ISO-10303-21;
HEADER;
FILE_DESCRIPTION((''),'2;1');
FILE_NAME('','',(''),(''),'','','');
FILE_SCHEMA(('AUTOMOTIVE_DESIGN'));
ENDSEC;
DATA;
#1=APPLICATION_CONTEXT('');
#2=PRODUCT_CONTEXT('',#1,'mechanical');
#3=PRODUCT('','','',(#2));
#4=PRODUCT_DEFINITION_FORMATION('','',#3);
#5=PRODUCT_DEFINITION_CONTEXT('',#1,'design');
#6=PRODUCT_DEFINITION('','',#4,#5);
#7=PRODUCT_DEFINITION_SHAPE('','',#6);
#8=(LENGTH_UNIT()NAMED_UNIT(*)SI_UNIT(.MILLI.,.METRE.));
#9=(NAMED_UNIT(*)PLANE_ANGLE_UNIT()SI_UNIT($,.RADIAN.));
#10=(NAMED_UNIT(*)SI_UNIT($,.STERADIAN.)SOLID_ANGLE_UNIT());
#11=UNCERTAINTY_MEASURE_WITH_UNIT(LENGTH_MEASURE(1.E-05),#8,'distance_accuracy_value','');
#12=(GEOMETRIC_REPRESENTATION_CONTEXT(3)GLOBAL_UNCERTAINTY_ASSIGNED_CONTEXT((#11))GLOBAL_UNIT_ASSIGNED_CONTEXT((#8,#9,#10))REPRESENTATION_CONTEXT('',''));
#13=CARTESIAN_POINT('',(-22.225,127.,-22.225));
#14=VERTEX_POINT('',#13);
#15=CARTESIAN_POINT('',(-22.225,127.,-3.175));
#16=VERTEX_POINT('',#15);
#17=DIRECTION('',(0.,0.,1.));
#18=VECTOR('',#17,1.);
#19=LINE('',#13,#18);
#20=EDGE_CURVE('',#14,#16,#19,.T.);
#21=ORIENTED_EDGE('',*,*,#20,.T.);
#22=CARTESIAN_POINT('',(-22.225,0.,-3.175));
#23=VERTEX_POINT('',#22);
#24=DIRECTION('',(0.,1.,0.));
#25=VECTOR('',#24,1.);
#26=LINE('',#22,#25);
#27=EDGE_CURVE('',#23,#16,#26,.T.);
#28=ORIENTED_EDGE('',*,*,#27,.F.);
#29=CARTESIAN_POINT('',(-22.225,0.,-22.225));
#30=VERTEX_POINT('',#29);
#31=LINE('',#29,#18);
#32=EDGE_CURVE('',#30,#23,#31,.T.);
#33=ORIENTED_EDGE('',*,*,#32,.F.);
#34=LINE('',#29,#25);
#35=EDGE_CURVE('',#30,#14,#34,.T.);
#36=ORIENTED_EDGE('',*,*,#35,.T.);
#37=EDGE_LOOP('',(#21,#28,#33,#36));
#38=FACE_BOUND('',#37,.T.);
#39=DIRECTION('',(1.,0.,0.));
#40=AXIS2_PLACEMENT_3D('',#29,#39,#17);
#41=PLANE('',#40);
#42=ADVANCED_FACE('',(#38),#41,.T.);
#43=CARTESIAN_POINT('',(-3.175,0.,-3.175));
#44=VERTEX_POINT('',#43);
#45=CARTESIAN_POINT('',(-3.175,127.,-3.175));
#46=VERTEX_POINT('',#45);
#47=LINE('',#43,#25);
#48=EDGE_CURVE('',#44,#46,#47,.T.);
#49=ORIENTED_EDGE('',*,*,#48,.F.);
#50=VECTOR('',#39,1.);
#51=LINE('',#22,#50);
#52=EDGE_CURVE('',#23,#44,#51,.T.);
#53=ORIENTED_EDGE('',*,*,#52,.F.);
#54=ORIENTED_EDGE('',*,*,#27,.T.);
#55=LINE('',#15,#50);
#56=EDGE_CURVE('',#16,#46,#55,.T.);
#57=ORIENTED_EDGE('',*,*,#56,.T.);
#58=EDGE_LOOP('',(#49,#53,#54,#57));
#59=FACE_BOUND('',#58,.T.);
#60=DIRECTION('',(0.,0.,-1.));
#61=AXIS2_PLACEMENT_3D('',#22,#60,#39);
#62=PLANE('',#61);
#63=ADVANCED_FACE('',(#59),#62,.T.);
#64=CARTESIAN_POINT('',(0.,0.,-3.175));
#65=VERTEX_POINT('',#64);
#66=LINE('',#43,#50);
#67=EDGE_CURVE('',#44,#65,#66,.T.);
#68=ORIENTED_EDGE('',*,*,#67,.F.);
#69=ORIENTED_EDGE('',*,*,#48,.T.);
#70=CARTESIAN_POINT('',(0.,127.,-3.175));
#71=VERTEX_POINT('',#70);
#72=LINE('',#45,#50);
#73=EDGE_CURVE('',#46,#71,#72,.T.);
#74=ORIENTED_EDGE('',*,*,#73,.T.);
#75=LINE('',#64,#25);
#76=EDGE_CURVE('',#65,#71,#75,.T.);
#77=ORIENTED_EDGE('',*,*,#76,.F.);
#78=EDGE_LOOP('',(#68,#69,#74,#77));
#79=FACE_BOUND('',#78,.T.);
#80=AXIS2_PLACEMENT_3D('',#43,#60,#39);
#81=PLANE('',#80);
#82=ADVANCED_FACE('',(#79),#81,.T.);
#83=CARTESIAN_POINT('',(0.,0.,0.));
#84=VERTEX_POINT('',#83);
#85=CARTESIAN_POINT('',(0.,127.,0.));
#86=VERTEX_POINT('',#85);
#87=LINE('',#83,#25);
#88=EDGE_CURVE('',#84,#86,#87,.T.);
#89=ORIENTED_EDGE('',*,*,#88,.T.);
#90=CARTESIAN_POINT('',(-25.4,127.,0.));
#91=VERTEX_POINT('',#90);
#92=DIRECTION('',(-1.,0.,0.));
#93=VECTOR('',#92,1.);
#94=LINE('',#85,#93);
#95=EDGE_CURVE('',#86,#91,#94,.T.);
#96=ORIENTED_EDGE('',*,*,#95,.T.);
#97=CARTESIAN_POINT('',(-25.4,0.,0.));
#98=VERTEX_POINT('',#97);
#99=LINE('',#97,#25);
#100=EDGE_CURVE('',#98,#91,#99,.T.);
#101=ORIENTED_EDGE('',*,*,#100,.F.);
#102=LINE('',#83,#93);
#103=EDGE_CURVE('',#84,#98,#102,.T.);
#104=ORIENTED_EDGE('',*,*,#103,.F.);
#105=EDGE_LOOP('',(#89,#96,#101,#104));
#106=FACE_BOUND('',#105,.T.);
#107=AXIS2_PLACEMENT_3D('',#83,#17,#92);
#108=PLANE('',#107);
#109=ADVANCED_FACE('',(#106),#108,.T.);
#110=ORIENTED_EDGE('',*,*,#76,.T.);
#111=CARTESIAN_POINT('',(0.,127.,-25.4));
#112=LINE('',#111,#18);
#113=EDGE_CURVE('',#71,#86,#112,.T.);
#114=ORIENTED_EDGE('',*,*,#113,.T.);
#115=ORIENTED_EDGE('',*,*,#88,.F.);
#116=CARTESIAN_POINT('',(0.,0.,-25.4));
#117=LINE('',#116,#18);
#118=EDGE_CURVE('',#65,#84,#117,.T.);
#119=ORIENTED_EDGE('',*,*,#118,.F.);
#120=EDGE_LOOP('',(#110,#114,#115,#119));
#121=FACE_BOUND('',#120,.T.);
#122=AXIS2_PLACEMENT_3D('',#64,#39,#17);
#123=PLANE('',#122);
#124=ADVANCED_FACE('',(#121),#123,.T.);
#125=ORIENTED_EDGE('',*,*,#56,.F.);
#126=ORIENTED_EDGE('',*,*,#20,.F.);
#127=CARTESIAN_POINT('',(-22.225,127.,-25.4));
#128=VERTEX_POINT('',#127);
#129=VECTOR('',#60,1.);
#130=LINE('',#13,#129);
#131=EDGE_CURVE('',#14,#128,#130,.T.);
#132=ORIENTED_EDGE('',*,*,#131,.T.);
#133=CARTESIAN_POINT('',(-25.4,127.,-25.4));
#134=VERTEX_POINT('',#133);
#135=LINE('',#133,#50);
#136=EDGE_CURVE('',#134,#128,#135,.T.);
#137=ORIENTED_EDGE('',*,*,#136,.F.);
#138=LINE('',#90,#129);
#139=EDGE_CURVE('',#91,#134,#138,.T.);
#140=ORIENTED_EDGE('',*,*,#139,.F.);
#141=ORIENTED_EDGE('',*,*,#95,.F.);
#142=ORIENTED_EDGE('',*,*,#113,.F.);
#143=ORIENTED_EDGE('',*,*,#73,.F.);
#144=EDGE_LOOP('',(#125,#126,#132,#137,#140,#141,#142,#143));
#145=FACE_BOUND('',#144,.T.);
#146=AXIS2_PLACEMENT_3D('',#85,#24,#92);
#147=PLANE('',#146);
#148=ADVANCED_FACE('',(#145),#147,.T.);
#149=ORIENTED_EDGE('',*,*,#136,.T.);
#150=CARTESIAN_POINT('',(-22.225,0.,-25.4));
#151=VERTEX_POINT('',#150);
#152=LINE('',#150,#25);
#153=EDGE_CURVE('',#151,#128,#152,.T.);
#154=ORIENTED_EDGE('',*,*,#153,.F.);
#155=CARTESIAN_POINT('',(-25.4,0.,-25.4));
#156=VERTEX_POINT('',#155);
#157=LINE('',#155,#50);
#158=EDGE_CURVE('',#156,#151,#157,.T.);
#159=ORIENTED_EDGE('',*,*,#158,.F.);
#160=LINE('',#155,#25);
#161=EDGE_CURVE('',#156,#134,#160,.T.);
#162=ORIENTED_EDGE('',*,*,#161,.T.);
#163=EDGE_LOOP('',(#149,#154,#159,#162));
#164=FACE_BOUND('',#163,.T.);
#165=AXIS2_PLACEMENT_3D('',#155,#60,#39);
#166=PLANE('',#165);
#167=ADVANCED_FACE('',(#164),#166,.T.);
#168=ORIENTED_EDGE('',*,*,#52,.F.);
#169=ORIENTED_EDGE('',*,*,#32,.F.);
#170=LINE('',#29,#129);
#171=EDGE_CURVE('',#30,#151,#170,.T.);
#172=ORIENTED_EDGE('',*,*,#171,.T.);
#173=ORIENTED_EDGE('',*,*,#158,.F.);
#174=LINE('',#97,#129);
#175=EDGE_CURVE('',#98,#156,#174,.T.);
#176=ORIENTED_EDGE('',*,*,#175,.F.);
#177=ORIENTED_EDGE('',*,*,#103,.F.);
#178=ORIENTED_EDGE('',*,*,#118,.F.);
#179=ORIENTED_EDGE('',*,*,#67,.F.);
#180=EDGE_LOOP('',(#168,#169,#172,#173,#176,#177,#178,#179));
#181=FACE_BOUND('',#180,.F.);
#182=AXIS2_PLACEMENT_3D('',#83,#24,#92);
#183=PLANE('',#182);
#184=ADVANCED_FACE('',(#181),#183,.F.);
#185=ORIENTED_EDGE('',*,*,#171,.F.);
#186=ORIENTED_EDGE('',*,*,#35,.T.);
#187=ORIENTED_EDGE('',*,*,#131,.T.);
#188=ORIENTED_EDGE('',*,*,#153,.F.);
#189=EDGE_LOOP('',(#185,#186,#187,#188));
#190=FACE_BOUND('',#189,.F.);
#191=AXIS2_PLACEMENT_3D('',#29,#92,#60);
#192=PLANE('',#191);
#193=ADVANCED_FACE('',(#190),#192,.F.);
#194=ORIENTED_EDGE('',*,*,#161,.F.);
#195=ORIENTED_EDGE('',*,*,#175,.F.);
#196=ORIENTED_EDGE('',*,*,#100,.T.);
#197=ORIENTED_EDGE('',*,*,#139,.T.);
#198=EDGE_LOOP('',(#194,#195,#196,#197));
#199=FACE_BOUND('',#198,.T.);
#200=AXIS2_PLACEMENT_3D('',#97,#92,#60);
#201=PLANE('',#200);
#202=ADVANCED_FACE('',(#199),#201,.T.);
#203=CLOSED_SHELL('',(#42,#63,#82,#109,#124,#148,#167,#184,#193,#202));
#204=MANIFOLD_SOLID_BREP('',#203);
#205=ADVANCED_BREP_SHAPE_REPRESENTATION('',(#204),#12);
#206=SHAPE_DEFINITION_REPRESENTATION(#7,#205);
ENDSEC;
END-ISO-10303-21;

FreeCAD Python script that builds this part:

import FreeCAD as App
import Part
import Sketcher

V = App.Vector
Q = App.Units.Quantity


def add_polygon(sketch, points):
    """Adds a closed chain of lines whose ends are joined by coincident constraints."""
    first, n = sketch.GeometryCount, len(points)
    for a, b in zip(points, points[1:] + points[:1]):
        sketch.addGeometry(Part.LineSegment(App.Vector(*a, 0), App.Vector(*b, 0)), False)
    for i in range(n):
        sketch.addConstraint(Sketcher.Constraint("Coincident", first + i, 2, first + (i + 1) % n, 1))

doc = App.newDocument("Part")
params = doc.addObject("Spreadsheet::Sheet", "Params")
for row, (alias, value) in enumerate([
    ("sketch1_width", "1 in"),
    ("sketch1_width2", "0.125 in"),
    ("pad1_length", "5 in"),
], start=1):
    params.set(f"A{row}", alias)
    params.set(f"B{row}", "=" + value)
    params.setAlias(f"B{row}", alias)

body = doc.addObject("PartDesign::Body", "Body")

# Sketch on XZ plane
sketch1 = doc.addObject("Sketcher::SketchObject", "Sketch")
body.addObject(sketch1)
sketch1.AttachmentSupport = (doc.XZ_Plane, [""])
sketch1.MapMode = "FlatFace"
add_polygon(sketch1, [(-25.4, 0), (0, 0), (0, -3.175), (-22.225, -3.175), (-22.225, -25.4), (-25.4, -25.4)])  # lines 0-5
sketch1.addConstraint([
    Sketcher.Constraint("Horizontal", 0),
    Sketcher.Constraint("Vertical", 1),
    Sketcher.Constraint("Horizontal", 2),
    Sketcher.Constraint("Vertical", 3),
    Sketcher.Constraint("Horizontal", 4),
    Sketcher.Constraint("Vertical", 5),
    Sketcher.Constraint("Coincident", 0, 2, -1, 1),
    Sketcher.Constraint("Equal", 4, 1),
    Sketcher.Constraint("Equal", 2, 3),
    Sketcher.Constraint("DistanceX", 0, 1, 0, 2, Q("1 in")),
    Sketcher.Constraint("DistanceX", 4, 2, 4, 1, Q("0.125 in")),
])
sketch1.setExpression("Constraints[15]", "Params.sketch1_width")
sketch1.setExpression("Constraints[16]", "Params.sketch1_width2")
pad1 = doc.addObject("PartDesign::Pad", "Pad")
body.addObject(pad1)
pad1.Profile = sketch1
pad1.setExpression("Length", "Params.pad1_length")
pad1.Reversed = True

doc.recompute()
